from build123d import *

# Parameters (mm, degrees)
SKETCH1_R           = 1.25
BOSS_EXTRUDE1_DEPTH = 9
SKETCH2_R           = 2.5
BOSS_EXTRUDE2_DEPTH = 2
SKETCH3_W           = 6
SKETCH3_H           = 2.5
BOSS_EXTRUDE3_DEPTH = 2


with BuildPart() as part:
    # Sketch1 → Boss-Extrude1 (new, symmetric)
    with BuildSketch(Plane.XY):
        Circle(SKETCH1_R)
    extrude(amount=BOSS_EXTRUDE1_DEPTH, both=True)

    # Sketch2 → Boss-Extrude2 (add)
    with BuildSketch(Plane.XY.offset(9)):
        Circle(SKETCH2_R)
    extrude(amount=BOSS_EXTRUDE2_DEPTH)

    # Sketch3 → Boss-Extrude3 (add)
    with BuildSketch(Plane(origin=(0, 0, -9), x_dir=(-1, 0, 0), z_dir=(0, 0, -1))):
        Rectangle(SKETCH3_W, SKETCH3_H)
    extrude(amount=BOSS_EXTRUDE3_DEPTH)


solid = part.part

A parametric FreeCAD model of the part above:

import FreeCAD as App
import Part
import Sketcher


def add_polygon(sketch, points):
    """Adds a closed chain of lines whose ends are joined by coincident constraints."""
    first, n = sketch.GeometryCount, len(points)
    for a, b in zip(points, points[1:] + points[:1]):
        sketch.addGeometry(Part.LineSegment(App.Vector(*a, 0), App.Vector(*b, 0)), False)
    for i in range(n):
        sketch.addConstraint(Sketcher.Constraint("Coincident", first + i, 2, first + (i + 1) % n, 1))

doc = App.newDocument("Part")
params = doc.addObject("Spreadsheet::Sheet", "Params")
for row, (alias, value) in enumerate([
    ("sketch1_diameter", "2.5 mm"),
    ("pad1_length", "18 mm"),
    ("sketch2_diameter", "5 mm"),
    ("pad2_length", "2 mm"),
    ("sketch3_width", "6 mm"),
    ("sketch3_height", "2.5 mm"),
    ("pad3_length", "2 mm"),
], start=1):
    params.set(f"A{row}", alias)
    params.set(f"B{row}", "=" + value)
    params.setAlias(f"B{row}", alias)

body = doc.addObject("PartDesign::Body", "Body")

# Sketch on XY plane
sketch1 = body.newObject("Sketcher::SketchObject", "Sketch")
sketch1.AttachmentSupport = (doc.getObject("XY_Plane"), [""])
sketch1.MapMode = "FlatFace"
sketch1.addGeometry(Part.Circle(App.Vector(0, 0, 0), App.Vector(0, 0, 1), 1.25), False)
sketch1.addConstraint([
    Sketcher.Constraint("Coincident", 0, 3, -1, 1),
    Sketcher.Constraint("Diameter", 0, 2.5),
])
sketch1.setExpression("Constraints[1]", "Params.sketch1_diameter")
pad1 = body.newObject("PartDesign::Pad", "Pad")
pad1.Profile = sketch1
pad1.setExpression("Length", "Params.pad1_length")
pad1.Midplane = True

# Sketch on XY plane
sketch2 = body.newObject("Sketcher::SketchObject", "Sketch001")
sketch2.AttachmentSupport = (doc.getObject("XY_Plane"), [""])
sketch2.MapMode = "FlatFace"
sketch2.AttachmentOffset = App.Placement(App.Vector(0, 0, 9), App.Rotation())
sketch2.addGeometry(Part.Circle(App.Vector(0, 0, 0), App.Vector(0, 0, 1), 2.5), False)
sketch2.addConstraint([
    Sketcher.Constraint("Coincident", 0, 3, -1, 1),
    Sketcher.Constraint("Diameter", 0, 5.0),
])
sketch2.setExpression("Constraints[1]", "Params.sketch2_diameter")
pad2 = body.newObject("PartDesign::Pad", "Pad001")
pad2.Profile = sketch2
pad2.setExpression("Length", "Params.pad2_length")

# Sketch on XY plane
sketch3 = body.newObject("Sketcher::SketchObject", "Sketch002")
sketch3.AttachmentSupport = (doc.getObject("XY_Plane"), [""])
sketch3.MapMode = "FlatFace"
sketch3.AttachmentOffset = App.Placement(App.Vector(0, 0, -9), App.Rotation())
add_polygon(sketch3, [(3, 1.25), (3, -1.25), (-3, -1.25), (-3, 1.25)])  # lines 0-3
sketch3.addConstraint([
    Sketcher.Constraint("Vertical", 0),
    Sketcher.Constraint("Horizontal", 1),
    Sketcher.Constraint("Vertical", 2),
    Sketcher.Constraint("Horizontal", 3),
    Sketcher.Constraint("Symmetric", 0, 2, 2, 2, -1, 1),
    Sketcher.Constraint("DistanceX", 1, 2, 1, 1, 6.0),
    Sketcher.Constraint("DistanceY", 0, 2, 0, 1, 2.5),
])
sketch3.setExpression("Constraints[9]", "Params.sketch3_width")
sketch3.setExpression("Constraints[10]", "Params.sketch3_height")
pad3 = body.newObject("PartDesign::Pad", "Pad002")
pad3.Profile = sketch3
pad3.setExpression("Length", "Params.pad3_length")
pad3.Reversed = True

doc.recompute()
